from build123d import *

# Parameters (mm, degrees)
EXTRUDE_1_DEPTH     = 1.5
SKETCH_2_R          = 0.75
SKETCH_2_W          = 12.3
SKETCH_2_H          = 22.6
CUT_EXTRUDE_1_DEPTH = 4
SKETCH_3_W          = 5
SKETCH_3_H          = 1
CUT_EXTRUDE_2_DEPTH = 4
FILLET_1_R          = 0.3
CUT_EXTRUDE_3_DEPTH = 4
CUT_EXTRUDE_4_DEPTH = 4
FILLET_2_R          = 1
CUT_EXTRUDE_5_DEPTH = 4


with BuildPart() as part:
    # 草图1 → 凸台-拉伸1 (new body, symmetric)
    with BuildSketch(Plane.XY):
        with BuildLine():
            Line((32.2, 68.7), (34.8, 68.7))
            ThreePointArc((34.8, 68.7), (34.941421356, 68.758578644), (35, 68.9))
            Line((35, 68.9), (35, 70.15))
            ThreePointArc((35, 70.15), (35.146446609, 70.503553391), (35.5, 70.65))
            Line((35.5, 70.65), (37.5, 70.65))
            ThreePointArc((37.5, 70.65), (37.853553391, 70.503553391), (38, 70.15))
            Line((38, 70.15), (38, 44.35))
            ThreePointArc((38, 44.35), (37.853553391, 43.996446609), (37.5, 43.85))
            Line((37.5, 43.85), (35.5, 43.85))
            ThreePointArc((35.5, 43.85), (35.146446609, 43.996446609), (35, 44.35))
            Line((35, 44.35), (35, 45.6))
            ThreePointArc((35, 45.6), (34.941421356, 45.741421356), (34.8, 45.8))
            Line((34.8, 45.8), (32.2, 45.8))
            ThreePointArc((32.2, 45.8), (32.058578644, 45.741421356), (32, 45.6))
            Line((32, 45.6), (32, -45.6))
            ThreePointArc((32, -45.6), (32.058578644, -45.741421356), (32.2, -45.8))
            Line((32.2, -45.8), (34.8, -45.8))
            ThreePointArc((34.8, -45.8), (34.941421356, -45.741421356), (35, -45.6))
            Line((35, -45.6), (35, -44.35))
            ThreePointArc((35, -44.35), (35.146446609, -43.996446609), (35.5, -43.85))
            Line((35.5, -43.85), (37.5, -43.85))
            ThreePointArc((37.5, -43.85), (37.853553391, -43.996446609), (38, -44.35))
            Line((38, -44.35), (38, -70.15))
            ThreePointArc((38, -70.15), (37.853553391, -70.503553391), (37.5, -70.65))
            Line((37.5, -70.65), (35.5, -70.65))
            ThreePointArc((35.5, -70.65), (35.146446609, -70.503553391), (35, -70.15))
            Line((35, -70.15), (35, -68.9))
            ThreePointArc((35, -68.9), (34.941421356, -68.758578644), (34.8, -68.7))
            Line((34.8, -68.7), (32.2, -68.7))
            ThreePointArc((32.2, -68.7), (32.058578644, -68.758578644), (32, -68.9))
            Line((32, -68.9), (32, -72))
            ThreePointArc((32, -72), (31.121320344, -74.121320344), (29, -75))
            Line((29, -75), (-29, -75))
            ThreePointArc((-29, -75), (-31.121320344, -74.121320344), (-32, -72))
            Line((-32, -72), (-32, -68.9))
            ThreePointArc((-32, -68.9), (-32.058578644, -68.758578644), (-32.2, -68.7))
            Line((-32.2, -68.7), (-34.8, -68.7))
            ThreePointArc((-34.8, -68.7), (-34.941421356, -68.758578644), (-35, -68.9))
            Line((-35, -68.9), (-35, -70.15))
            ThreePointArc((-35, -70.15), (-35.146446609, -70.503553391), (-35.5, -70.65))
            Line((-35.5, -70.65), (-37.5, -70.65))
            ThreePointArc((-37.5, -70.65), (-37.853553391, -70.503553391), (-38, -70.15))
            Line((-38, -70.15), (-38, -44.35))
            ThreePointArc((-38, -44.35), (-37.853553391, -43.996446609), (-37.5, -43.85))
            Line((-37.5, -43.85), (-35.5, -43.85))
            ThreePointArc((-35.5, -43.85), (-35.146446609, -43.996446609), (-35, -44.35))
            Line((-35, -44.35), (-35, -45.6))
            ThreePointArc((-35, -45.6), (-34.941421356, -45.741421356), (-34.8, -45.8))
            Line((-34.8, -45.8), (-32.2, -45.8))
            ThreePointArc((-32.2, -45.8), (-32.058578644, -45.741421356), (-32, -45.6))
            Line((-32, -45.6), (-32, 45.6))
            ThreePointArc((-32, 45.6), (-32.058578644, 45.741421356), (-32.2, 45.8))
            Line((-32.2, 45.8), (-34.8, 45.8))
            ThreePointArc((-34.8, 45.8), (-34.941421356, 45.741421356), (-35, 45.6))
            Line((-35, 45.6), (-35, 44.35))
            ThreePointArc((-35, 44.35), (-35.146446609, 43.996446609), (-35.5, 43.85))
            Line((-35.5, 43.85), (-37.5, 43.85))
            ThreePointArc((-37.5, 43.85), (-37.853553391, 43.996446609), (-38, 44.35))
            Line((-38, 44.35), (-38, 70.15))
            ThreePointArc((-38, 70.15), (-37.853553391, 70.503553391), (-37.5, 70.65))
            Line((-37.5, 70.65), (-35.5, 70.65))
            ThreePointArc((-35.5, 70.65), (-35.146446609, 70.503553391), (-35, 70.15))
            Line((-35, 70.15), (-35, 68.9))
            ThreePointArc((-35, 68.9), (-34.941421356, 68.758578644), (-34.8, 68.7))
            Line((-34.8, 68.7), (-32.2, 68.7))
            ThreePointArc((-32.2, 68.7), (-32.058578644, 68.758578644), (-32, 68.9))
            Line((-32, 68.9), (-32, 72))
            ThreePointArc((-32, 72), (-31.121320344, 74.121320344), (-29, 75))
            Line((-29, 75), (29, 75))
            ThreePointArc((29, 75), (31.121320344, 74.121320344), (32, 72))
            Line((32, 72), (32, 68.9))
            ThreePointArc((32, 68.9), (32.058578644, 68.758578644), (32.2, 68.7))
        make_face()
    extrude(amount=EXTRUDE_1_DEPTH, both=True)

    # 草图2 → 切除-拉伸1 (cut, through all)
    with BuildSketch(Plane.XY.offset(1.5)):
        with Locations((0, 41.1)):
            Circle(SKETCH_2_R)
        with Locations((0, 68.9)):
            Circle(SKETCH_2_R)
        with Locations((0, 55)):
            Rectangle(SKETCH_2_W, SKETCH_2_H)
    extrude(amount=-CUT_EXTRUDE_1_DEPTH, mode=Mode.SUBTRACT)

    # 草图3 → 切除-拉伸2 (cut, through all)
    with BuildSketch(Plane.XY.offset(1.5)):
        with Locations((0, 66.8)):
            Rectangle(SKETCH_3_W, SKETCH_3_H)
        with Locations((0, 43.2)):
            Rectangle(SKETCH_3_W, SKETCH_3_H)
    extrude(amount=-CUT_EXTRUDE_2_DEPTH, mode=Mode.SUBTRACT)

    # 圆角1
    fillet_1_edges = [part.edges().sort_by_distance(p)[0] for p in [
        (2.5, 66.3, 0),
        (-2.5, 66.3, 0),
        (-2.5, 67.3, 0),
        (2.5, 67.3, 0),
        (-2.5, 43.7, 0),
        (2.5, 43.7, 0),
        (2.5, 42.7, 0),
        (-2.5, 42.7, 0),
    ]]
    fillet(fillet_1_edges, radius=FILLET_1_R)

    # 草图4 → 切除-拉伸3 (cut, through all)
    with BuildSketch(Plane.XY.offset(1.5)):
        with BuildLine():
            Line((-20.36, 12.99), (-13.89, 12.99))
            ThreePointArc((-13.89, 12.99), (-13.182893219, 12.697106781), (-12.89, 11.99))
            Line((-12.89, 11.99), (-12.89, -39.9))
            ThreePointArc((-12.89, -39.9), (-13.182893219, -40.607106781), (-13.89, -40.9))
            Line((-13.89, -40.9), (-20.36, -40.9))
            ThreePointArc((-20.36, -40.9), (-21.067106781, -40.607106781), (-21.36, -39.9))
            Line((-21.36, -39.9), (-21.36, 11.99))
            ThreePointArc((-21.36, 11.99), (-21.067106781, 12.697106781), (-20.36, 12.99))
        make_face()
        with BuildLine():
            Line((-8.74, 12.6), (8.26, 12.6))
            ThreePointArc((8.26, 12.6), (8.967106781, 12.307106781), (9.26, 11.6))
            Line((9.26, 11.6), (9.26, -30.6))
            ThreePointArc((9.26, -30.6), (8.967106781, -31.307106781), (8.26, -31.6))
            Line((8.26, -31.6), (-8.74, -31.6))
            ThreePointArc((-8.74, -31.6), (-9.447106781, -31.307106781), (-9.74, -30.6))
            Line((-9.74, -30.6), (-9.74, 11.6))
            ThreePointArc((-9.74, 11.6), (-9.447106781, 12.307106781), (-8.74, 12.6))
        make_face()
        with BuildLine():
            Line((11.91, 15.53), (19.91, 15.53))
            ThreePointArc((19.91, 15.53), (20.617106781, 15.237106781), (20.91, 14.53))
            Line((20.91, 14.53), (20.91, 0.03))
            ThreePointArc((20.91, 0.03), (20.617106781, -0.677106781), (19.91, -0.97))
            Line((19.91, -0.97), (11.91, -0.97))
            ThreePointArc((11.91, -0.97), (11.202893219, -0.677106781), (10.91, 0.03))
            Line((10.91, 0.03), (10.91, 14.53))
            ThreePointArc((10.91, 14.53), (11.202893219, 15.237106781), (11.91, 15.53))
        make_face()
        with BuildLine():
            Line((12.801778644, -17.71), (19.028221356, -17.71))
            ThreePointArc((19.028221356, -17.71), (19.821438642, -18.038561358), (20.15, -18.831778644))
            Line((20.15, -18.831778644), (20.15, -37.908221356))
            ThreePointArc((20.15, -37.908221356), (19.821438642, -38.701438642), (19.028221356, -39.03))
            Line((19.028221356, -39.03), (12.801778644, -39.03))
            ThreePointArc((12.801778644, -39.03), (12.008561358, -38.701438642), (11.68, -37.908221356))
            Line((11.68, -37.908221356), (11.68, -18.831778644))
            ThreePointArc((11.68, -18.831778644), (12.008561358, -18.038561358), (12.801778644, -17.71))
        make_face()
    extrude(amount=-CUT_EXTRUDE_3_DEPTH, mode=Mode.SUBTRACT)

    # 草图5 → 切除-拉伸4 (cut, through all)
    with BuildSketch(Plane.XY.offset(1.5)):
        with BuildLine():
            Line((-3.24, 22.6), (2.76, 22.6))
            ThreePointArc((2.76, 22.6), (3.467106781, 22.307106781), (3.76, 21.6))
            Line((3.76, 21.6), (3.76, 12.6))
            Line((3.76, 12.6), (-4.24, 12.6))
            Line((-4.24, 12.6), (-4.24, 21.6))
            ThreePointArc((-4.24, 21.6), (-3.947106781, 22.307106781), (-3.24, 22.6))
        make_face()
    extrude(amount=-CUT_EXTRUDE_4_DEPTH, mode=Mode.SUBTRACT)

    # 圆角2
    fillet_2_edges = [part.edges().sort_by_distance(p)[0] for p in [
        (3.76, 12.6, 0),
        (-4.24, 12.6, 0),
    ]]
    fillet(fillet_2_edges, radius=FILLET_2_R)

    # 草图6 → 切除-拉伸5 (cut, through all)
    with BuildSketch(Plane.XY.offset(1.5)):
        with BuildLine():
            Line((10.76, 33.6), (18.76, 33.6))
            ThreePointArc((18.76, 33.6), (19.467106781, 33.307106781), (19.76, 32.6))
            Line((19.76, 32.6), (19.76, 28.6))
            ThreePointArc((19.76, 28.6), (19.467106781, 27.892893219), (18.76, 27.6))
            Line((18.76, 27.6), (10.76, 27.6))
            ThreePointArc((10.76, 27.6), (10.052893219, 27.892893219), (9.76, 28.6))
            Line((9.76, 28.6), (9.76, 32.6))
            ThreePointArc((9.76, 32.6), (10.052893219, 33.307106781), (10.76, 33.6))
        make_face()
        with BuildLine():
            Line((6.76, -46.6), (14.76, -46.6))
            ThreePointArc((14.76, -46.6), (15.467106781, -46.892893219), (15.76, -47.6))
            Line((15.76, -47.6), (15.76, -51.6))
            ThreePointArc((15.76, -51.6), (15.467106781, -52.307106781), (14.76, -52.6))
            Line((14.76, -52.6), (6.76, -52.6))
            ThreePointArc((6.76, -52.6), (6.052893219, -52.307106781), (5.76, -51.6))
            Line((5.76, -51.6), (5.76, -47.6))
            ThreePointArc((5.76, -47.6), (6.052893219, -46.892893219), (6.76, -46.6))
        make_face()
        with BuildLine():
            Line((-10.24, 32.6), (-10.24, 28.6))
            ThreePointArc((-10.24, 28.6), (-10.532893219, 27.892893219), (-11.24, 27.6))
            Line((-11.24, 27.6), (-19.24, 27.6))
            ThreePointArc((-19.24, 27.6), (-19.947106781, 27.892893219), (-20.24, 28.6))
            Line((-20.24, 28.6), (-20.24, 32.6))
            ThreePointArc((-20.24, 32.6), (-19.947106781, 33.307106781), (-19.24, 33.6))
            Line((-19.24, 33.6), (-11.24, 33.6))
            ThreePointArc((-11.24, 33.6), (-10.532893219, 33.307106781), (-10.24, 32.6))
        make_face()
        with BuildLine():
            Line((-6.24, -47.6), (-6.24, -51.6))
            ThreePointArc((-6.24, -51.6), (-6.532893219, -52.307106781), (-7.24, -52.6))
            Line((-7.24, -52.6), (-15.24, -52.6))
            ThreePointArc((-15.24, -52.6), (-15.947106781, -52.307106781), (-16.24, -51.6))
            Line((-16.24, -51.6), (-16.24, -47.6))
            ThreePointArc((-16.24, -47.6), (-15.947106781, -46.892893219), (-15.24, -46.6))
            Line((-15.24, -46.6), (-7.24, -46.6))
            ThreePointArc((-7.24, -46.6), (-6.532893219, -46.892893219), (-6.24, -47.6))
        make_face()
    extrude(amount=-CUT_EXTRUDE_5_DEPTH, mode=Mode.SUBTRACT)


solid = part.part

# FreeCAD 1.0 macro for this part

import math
import FreeCAD as App
import Part
import Sketcher

V = App.Vector
Q = App.Units.Quantity


def edges_at(feature, points):
    """Names of the edges that pass closest to the given points."""
    edges = feature.Shape.Edges
    near = lambda p: min(range(len(edges)), key=lambda i: edges[i].distToShape(Part.Vertex(*p))[0])
    return sorted({f"Edge{near(p) + 1}" for p in points})

doc = App.newDocument("Part")
body = doc.addObject("PartDesign::Body", "Body")

sketch1 = body.newObject("Sketcher::SketchObject", "Sketch")
sketch1.AttachmentSupport = (doc.getObject("XY_Plane"), [""])
sketch1.MapMode = "FlatFace"
sketch1.addGeometry([
    Part.LineSegment(V(34.8, 68.7, 0), V(32.2, 68.7, 0)),
    Part.ArcOfCircle(Part.Circle(V(32.2, 68.9, 0), V(0, 0, 1), 0.2), math.radians(-180), math.radians(-90)),
    Part.LineSegment(V(32, 68.9, 0), V(32, 72, 0)),
    Part.ArcOfCircle(Part.Circle(V(29, 72, 0), V(0, 0, 1), 3), math.radians(0), math.radians(90)),
    Part.LineSegment(V(29, 75, 0), V(-29, 75, 0)),
    Part.ArcOfCircle(Part.Circle(V(-29, 72, 0), V(0, 0, 1), 3), math.radians(90), math.radians(180)),
    Part.LineSegment(V(-32, 72, 0), V(-32, 68.9, 0)),
    Part.ArcOfCircle(Part.Circle(V(-32.2, 68.9, 0), V(0, 0, 1), 0.2), math.radians(-90), math.radians(0)),
    Part.LineSegment(V(-32.2, 68.7, 0), V(-34.8, 68.7, 0)),
    Part.ArcOfCircle(Part.Circle(V(-34.8, 68.9, 0), V(0, 0, 1), 0.2), math.radians(-180), math.radians(-90)),
    Part.LineSegment(V(-35, 68.9, 0), V(-35, 70.15, 0)),
    Part.ArcOfCircle(Part.Circle(V(-35.5, 70.15, 0), V(0, 0, 1), 0.5), math.radians(0), math.radians(90)),
    Part.LineSegment(V(-35.5, 70.65, 0), V(-37.5, 70.65, 0)),
    Part.ArcOfCircle(Part.Circle(V(-37.5, 70.15, 0), V(0, 0, 1), 0.5), math.radians(90), math.radians(180)),
    Part.LineSegment(V(-38, 70.15, 0), V(-38, 44.35, 0)),
    Part.ArcOfCircle(Part.Circle(V(-37.5, 44.35, 0), V(0, 0, 1), 0.5), math.radians(180), math.radians(270)),
    Part.LineSegment(V(-37.5, 43.85, 0), V(-35.5, 43.85, 0)),
    Part.ArcOfCircle(Part.Circle(V(-35.5, 44.35, 0), V(0, 0, 1), 0.5), math.radians(-90), math.radians(0)),
    Part.LineSegment(V(-35, 44.35, 0), V(-35, 45.6, 0)),
    Part.ArcOfCircle(Part.Circle(V(-34.8, 45.6, 0), V(0, 0, 1), 0.2), math.radians(90), math.radians(180)),
    Part.LineSegment(V(-34.8, 45.8, 0), V(-32.2, 45.8, 0)),
    Part.ArcOfCircle(Part.Circle(V(-32.2, 45.6, 0), V(0, 0, 1), 0.2), math.radians(0), math.radians(90)),
    Part.LineSegment(V(-32, 45.6, 0), V(-32, -45.6, 0)),
    Part.ArcOfCircle(Part.Circle(V(-32.2, -45.6, 0), V(0, 0, 1), 0.2), math.radians(-90), math.radians(0)),
    Part.LineSegment(V(-32.2, -45.8, 0), V(-34.8, -45.8, 0)),
    Part.ArcOfCircle(Part.Circle(V(-34.8, -45.6, 0), V(0, 0, 1), 0.2), math.radians(-180), math.radians(-90)),
    Part.LineSegment(V(-35, -45.6, 0), V(-35, -44.35, 0)),
    Part.ArcOfCircle(Part.Circle(V(-35.5, -44.35, 0), V(0, 0, 1), 0.5), math.radians(0), math.radians(90)),
    Part.LineSegment(V(-35.5, -43.85, 0), V(-37.5, -43.85, 0)),
    Part.ArcOfCircle(Part.Circle(V(-37.5, -44.35, 0), V(0, 0, 1), 0.5), math.radians(90), math.radians(180)),
    Part.LineSegment(V(-38, -44.35, 0), V(-38, -70.15, 0)),
    Part.ArcOfCircle(Part.Circle(V(-37.5, -70.15, 0), V(0, 0, 1), 0.5), math.radians(180), math.radians(270)),
    Part.LineSegment(V(-37.5, -70.65, 0), V(-35.5, -70.65, 0)),
    Part.ArcOfCircle(Part.Circle(V(-35.5, -70.15, 0), V(0, 0, 1), 0.5), math.radians(-90), math.radians(0)),
    Part.LineSegment(V(-35, -70.15, 0), V(-35, -68.9, 0)),
    Part.ArcOfCircle(Part.Circle(V(-34.8, -68.9, 0), V(0, 0, 1), 0.2), math.radians(90), math.radians(180)),
    Part.LineSegment(V(-34.8, -68.7, 0), V(-32.2, -68.7, 0)),
    Part.ArcOfCircle(Part.Circle(V(-32.2, -68.9, 0), V(0, 0, 1), 0.2), math.radians(0), math.radians(90)),
    Part.LineSegment(V(-32, -68.9, 0), V(-32, -72, 0)),
    Part.ArcOfCircle(Part.Circle(V(-29, -72, 0), V(0, 0, 1), 3), math.radians(180), math.radians(270)),
    Part.LineSegment(V(-29, -75, 0), V(29, -75, 0)),
    Part.ArcOfCircle(Part.Circle(V(29, -72, 0), V(0, 0, 1), 3), math.radians(-90), math.radians(0)),
    Part.LineSegment(V(32, -72, 0), V(32, -68.9, 0)),
    Part.ArcOfCircle(Part.Circle(V(32.2, -68.9, 0), V(0, 0, 1), 0.2), math.radians(90), math.radians(180)),
    Part.LineSegment(V(32.2, -68.7, 0), V(34.8, -68.7, 0)),
    Part.ArcOfCircle(Part.Circle(V(34.8, -68.9, 0), V(0, 0, 1), 0.2), math.radians(0), math.radians(90)),
    Part.LineSegment(V(35, -68.9, 0), V(35, -70.15, 0)),
    Part.ArcOfCircle(Part.Circle(V(35.5, -70.15, 0), V(0, 0, 1), 0.5), math.radians(180), math.radians(270)),
    Part.LineSegment(V(35.5, -70.65, 0), V(37.5, -70.65, 0)),
    Part.ArcOfCircle(Part.Circle(V(37.5, -70.15, 0), V(0, 0, 1), 0.5), math.radians(-90), math.radians(0)),
    Part.LineSegment(V(38, -70.15, 0), V(38, -44.35, 0)),
    Part.ArcOfCircle(Part.Circle(V(37.5, -44.35, 0), V(0, 0, 1), 0.5), math.radians(0), math.radians(90)),
    Part.LineSegment(V(37.5, -43.85, 0), V(35.5, -43.85, 0)),
    Part.ArcOfCircle(Part.Circle(V(35.5, -44.35, 0), V(0, 0, 1), 0.5), math.radians(90), math.radians(180)),
    Part.LineSegment(V(35, -44.35, 0), V(35, -45.6, 0)),
    Part.ArcOfCircle(Part.Circle(V(34.8, -45.6, 0), V(0, 0, 1), 0.2), math.radians(-90), math.radians(0)),
    Part.LineSegment(V(34.8, -45.8, 0), V(32.2, -45.8, 0)),
    Part.ArcOfCircle(Part.Circle(V(32.2, -45.6, 0), V(0, 0, 1), 0.2), math.radians(-180), math.radians(-90)),
    Part.LineSegment(V(32, -45.6, 0), V(32, 45.6, 0)),
    Part.ArcOfCircle(Part.Circle(V(32.2, 45.6, 0), V(0, 0, 1), 0.2), math.radians(90), math.radians(180)),
    Part.LineSegment(V(32.2, 45.8, 0), V(34.8, 45.8, 0)),
    Part.ArcOfCircle(Part.Circle(V(34.8, 45.6, 0), V(0, 0, 1), 0.2), math.radians(0), math.radians(90)),
    Part.LineSegment(V(35, 45.6, 0), V(35, 44.35, 0)),
    Part.ArcOfCircle(Part.Circle(V(35.5, 44.35, 0), V(0, 0, 1), 0.5), math.radians(180), math.radians(270)),
    Part.LineSegment(V(35.5, 43.85, 0), V(37.5, 43.85, 0)),
    Part.ArcOfCircle(Part.Circle(V(37.5, 44.35, 0), V(0, 0, 1), 0.5), math.radians(-90), math.radians(0)),
    Part.LineSegment(V(38, 44.35, 0), V(38, 70.15, 0)),
    Part.ArcOfCircle(Part.Circle(V(37.5, 70.15, 0), V(0, 0, 1), 0.5), math.radians(0), math.radians(90)),
    Part.LineSegment(V(37.5, 70.65, 0), V(35.5, 70.65, 0)),
    Part.ArcOfCircle(Part.Circle(V(35.5, 70.15, 0), V(0, 0, 1), 0.5), math.radians(90), math.radians(180)),
    Part.LineSegment(V(35, 70.15, 0), V(35, 68.9, 0)),
    Part.ArcOfCircle(Part.Circle(V(34.8, 68.9, 0), V(0, 0, 1), 0.2), math.radians(-90), math.radians(0)),
], False)
sketch1.addConstraint([
    Sketcher.Constraint("Tangent", 0, 2, 1, 2),
    Sketcher.Constraint("Tangent", 1, 1, 2, 1),
    Sketcher.Constraint("Tangent", 2, 2, 3, 1),
    Sketcher.Constraint("Tangent", 3, 2, 4, 1),
    Sketcher.Constraint("Tangent", 4, 2, 5, 1),
    Sketcher.Constraint("Tangent", 5, 2, 6, 1),
    Sketcher.Constraint("Tangent", 6, 2, 7, 2),
    Sketcher.Constraint("Tangent", 7, 1, 8, 1),
    Sketcher.Constraint("Tangent", 8, 2, 9, 2),
    Sketcher.Constraint("Tangent", 9, 1, 10, 1),
    Sketcher.Constraint("Tangent", 10, 2, 11, 1),
    Sketcher.Constraint("Tangent", 11, 2, 12, 1),
    Sketcher.Constraint("Tangent", 12, 2, 13, 1),
    Sketcher.Constraint("Tangent", 13, 2, 14, 1),
    Sketcher.Constraint("Tangent", 14, 2, 15, 1),
    Sketcher.Constraint("Tangent", 15, 2, 16, 1),
    Sketcher.Constraint("Tangent", 16, 2, 17, 1),
    Sketcher.Constraint("Tangent", 17, 2, 18, 1),
    Sketcher.Constraint("Tangent", 18, 2, 19, 2),
    Sketcher.Constraint("Tangent", 19, 1, 20, 1),
    Sketcher.Constraint("Tangent", 20, 2, 21, 2),
    Sketcher.Constraint("Tangent", 21, 1, 22, 1),
    Sketcher.Constraint("Tangent", 22, 2, 23, 2),
    Sketcher.Constraint("Tangent", 23, 1, 24, 1),
    Sketcher.Constraint("Tangent", 24, 2, 25, 2),
    Sketcher.Constraint("Tangent", 25, 1, 26, 1),
    Sketcher.Constraint("Tangent", 26, 2, 27, 1),
    Sketcher.Constraint("Tangent", 27, 2, 28, 1),
    Sketcher.Constraint("Tangent", 28, 2, 29, 1),
    Sketcher.Constraint("Tangent", 29, 2, 30, 1),
    Sketcher.Constraint("Tangent", 30, 2, 31, 1),
    Sketcher.Constraint("Tangent", 31, 2, 32, 1),
    Sketcher.Constraint("Tangent", 32, 2, 33, 1),
    Sketcher.Constraint("Tangent", 33, 2, 34, 1),
    Sketcher.Constraint("Tangent", 34, 2, 35, 2),
    Sketcher.Constraint("Tangent", 35, 1, 36, 1),
    Sketcher.Constraint("Tangent", 36, 2, 37, 2),
    Sketcher.Constraint("Tangent", 37, 1, 38, 1),
    Sketcher.Constraint("Tangent", 38, 2, 39, 1),
    Sketcher.Constraint("Tangent", 39, 2, 40, 1),
    Sketcher.Constraint("Tangent", 40, 2, 41, 1),
    Sketcher.Constraint("Tangent", 41, 2, 42, 1),
    Sketcher.Constraint("Tangent", 42, 2, 43, 2),
    Sketcher.Constraint("Tangent", 43, 1, 44, 1),
    Sketcher.Constraint("Tangent", 44, 2, 45, 2),
    Sketcher.Constraint("Tangent", 45, 1, 46, 1),
    Sketcher.Constraint("Tangent", 46, 2, 47, 1),
    Sketcher.Constraint("Tangent", 47, 2, 48, 1),
    Sketcher.Constraint("Tangent", 48, 2, 49, 1),
    Sketcher.Constraint("Tangent", 49, 2, 50, 1),
    Sketcher.Constraint("Tangent", 50, 2, 51, 1),
    Sketcher.Constraint("Tangent", 51, 2, 52, 1),
    Sketcher.Constraint("Tangent", 52, 2, 53, 1),
    Sketcher.Constraint("Tangent", 53, 2, 54, 1),
    Sketcher.Constraint("Tangent", 54, 2, 55, 2),
    Sketcher.Constraint("Tangent", 55, 1, 56, 1),
    Sketcher.Constraint("Tangent", 56, 2, 57, 2),
    Sketcher.Constraint("Tangent", 57, 1, 58, 1),
    Sketcher.Constraint("Tangent", 58, 2, 59, 2),
    Sketcher.Constraint("Tangent", 59, 1, 60, 1),
    Sketcher.Constraint("Tangent", 60, 2, 61, 2),
    Sketcher.Constraint("Tangent", 61, 1, 62, 1),
    Sketcher.Constraint("Tangent", 62, 2, 63, 1),
    Sketcher.Constraint("Tangent", 63, 2, 64, 1),
    Sketcher.Constraint("Tangent", 64, 2, 65, 1),
    Sketcher.Constraint("Tangent", 65, 2, 66, 1),
    Sketcher.Constraint("Tangent", 66, 2, 67, 1),
    Sketcher.Constraint("Tangent", 67, 2, 68, 1),
    Sketcher.Constraint("Tangent", 68, 2, 69, 1),
    Sketcher.Constraint("Tangent", 69, 2, 70, 1),
    Sketcher.Constraint("Tangent", 70, 2, 71, 2),
    Sketcher.Constraint("Tangent", 71, 1, 0, 1),
    Sketcher.Constraint("Horizontal", 0),
    Sketcher.Constraint("Vertical", 2),
    Sketcher.Constraint("Horizontal", 4),
    Sketcher.Constraint("Vertical", 6),
    Sketcher.Constraint("Horizontal", 8),
    Sketcher.Constraint("Vertical", 10),
    Sketcher.Constraint("Horizontal", 12),
    Sketcher.Constraint("Vertical", 14),
    Sketcher.Constraint("Horizontal", 16),
    Sketcher.Constraint("Vertical", 18),
    Sketcher.Constraint("Horizontal", 20),
    Sketcher.Constraint("Vertical", 22),
    Sketcher.Constraint("Horizontal", 24),
    Sketcher.Constraint("Vertical", 26),
    Sketcher.Constraint("Horizontal", 28),
    Sketcher.Constraint("Vertical", 30),
    Sketcher.Constraint("Horizontal", 32),
    Sketcher.Constraint("Vertical", 34),
    Sketcher.Constraint("Horizontal", 36),
    Sketcher.Constraint("Vertical", 38),
    Sketcher.Constraint("Horizontal", 40),
    Sketcher.Constraint("Vertical", 42),
    Sketcher.Constraint("Horizontal", 44),
    Sketcher.Constraint("Vertical", 46),
    Sketcher.Constraint("Horizontal", 48),
    Sketcher.Constraint("Vertical", 50),
    Sketcher.Constraint("Horizontal", 52),
    Sketcher.Constraint("Vertical", 54),
    Sketcher.Constraint("Horizontal", 56),
    Sketcher.Constraint("Vertical", 58),
    Sketcher.Constraint("Horizontal", 60),
    Sketcher.Constraint("Vertical", 62),
    Sketcher.Constraint("Horizontal", 64),
    Sketcher.Constraint("Vertical", 66),
    Sketcher.Constraint("Horizontal", 68),
    Sketcher.Constraint("Vertical", 70),
    Sketcher.Constraint("Equal", 3, 5),
    Sketcher.Constraint("Equal", 1, 7),
    Sketcher.Constraint("Equal", 7, 9),
    Sketcher.Constraint("Equal", 11, 13),
    Sketcher.Constraint("Equal", 13, 15),
    Sketcher.Constraint("Equal", 15, 17),
    Sketcher.Constraint("Equal", 9, 19),
    Sketcher.Constraint("Equal", 19, 21),
    Sketcher.Constraint("Equal", 21, 23),
    Sketcher.Constraint("Equal", 23, 25),
    Sketcher.Constraint("Equal", 17, 27),
    Sketcher.Constraint("Equal", 27, 29),
    Sketcher.Constraint("Equal", 29, 31),
    Sketcher.Constraint("Equal", 31, 33),
    Sketcher.Constraint("Equal", 25, 35),
    Sketcher.Constraint("Equal", 35, 37),
    Sketcher.Constraint("Equal", 5, 39),
    Sketcher.Constraint("Equal", 39, 41),
    Sketcher.Constraint("Equal", 37, 43),
    Sketcher.Constraint("Equal", 43, 45),
    Sketcher.Constraint("Equal", 33, 47),
    Sketcher.Constraint("Equal", 47, 49),
    Sketcher.Constraint("Equal", 49, 51),
    Sketcher.Constraint("Equal", 51, 53),
    Sketcher.Constraint("Equal", 45, 55),
    Sketcher.Constraint("Equal", 55, 57),
    Sketcher.Constraint("Equal", 57, 59),
    Sketcher.Constraint("Equal", 59, 61),
    Sketcher.Constraint("Equal", 53, 63),
    Sketcher.Constraint("Equal", 63, 65),
    Sketcher.Constraint("Equal", 65, 67),
    Sketcher.Constraint("Equal", 67, 69),
    Sketcher.Constraint("Equal", 61, 71),
    Sketcher.Constraint("Symmetric", 1, 3, 37, 3, -1, 1),
    Sketcher.Constraint("Symmetric", 5, 3, 41, 3, -1, 1),
    Sketcher.Constraint("Symmetric", 9, 3, 45, 3, -1, 1),
    Sketcher.Constraint("Symmetric", 13, 3, 49, 3, -1, 1),
    Sketcher.Constraint("Symmetric", 17, 3, 53, 3, -1, 1),
    Sketcher.Constraint("Symmetric", 21, 3, 57, 3, -1, 1),
    Sketcher.Constraint("Symmetric", 25, 3, 61, 3, -1, 1),
    Sketcher.Constraint("Symmetric", 29, 3, 65, 3, -1, 1),
    Sketcher.Constraint("Symmetric", 33, 3, 69, 3, -1, 1),
    Sketcher.Constraint("Symmetric", 1, 3, 7, 3, -2),
    Sketcher.Constraint("Symmetric", 33, 3, 47, 3, -2),
    Sketcher.Constraint("Symmetric", 29, 3, 51, 3, -2),
    Sketcher.Constraint("Symmetric", 25, 3, 55, 3, -2),
    Sketcher.Constraint("Vertical", 11, 3, 17, 3),
    Sketcher.Constraint("Vertical", 7, 3, 21, 3),
    Sketcher.Constraint("Equal", 10, 18),
    Sketcher.Constraint("Radius", 3, Q("3 mm")),
    Sketcher.Constraint("Radius", 1, Q("0.2 mm")),
    Sketcher.Constraint("Radius", 11, Q("0.5 mm")),
    Sketcher.Constraint("DistanceX", 4, 2, 4, 1, Q("58 mm")),
    Sketcher.Constraint("DistanceX", 12, 2, 12, 1, Q("2 mm")),
    Sketcher.Constraint("DistanceX", 0, 2, 0, 1, Q("2.6 mm")),
    Sketcher.Constraint("DistanceY", 2, 1, 2, 2, Q("3.1 mm")),
    Sketcher.Constraint("DistanceY", 14, 2, 14, 1, Q("25.8 mm")),
    Sketcher.Constraint("DistanceY", 22, 2, 22, 1, Q("91.2 mm")),
    Sketcher.Constraint("DistanceY", -1, 1, 3, 3, Q("72 mm")),
])
pad1 = body.newObject("PartDesign::Pad", "Pad")
pad1.Profile = sketch1
pad1.Length = 3
pad1.Midplane = True

sketch2 = body.newObject("Sketcher::SketchObject", "Sketch001")
sketch2.AttachmentSupport = (doc.getObject("XY_Plane"), [""])
sketch2.MapMode = "FlatFace"
sketch2.AttachmentOffset = App.Placement(V(0, 0, 1.5), App.Rotation())
sketch2.addGeometry([
    Part.Circle(V(0, 41.1, 0), V(0, 0, 1), 0.8),
    Part.Circle(V(0, 68.9, 0), V(0, 0, 1), 0.8),
    Part.LineSegment(V(-6.2, 66.3, 0), V(-6.2, 43.7, 0)),
    Part.LineSegment(V(-6.2, 43.7, 0), V(6.2, 43.7, 0)),
    Part.LineSegment(V(6.2, 43.7, 0), V(6.2, 66.3, 0)),
    Part.LineSegment(V(6.2, 66.3, 0), V(-6.2, 66.3, 0)),
], False)
sketch2.addConstraint([
    Sketcher.Constraint("Coincident", 2, 2, 3, 1),
    Sketcher.Constraint("Coincident", 3, 2, 4, 1),
    Sketcher.Constraint("Coincident", 4, 2, 5, 1),
    Sketcher.Constraint("Coincident", 5, 2, 2, 1),
    Sketcher.Constraint("Vertical", 2),
    Sketcher.Constraint("Horizontal", 3),
    Sketcher.Constraint("Vertical", 4),
    Sketcher.Constraint("Horizontal", 5),
    Sketcher.Constraint("Equal", 0, 1),
    Sketcher.Constraint("PointOnObject", 0, 3, -2),
    Sketcher.Constraint("PointOnObject", 1, 3, -2),
    Sketcher.Constraint("Diameter", 0, Q("1.5 mm")),
    Sketcher.Constraint("DistanceX", 3, 1, 3, 2, Q("12.3 mm")),
    Sketcher.Constraint("DistanceY", 2, 2, 2, 1, Q("22.6 mm")),
    Sketcher.Constraint("DistanceY", -1, 1, 0, 3, Q("41.1 mm")),
    Sketcher.Constraint("DistanceY", -1, 1, 1, 3, Q("68.9 mm")),
    Sketcher.Constraint("DistanceY", -1, 1, 2, 2, Q("43.7 mm")),
    Sketcher.Constraint("DistanceX", 2, 2, -1, 1, Q("6.15 mm")),
])
pocket1 = body.newObject("PartDesign::Pocket", "Pocket")
pocket1.Profile = sketch2
pocket1.Type = "ThroughAll"

sketch3 = body.newObject("Sketcher::SketchObject", "Sketch002")
sketch3.AttachmentSupport = (doc.getObject("XY_Plane"), [""])
sketch3.MapMode = "FlatFace"
sketch3.AttachmentOffset = App.Placement(V(0, 0, 1.5), App.Rotation())
sketch3.addGeometry([
    Part.LineSegment(V(-2.5, 67.3, 0), V(-2.5, 66.3, 0)),
    Part.LineSegment(V(-2.5, 66.3, 0), V(2.5, 66.3, 0)),
    Part.LineSegment(V(2.5, 66.3, 0), V(2.5, 67.3, 0)),
    Part.LineSegment(V(2.5, 67.3, 0), V(-2.5, 67.3, 0)),
    Part.LineSegment(V(-2.5, 43.7, 0), V(-2.5, 42.7, 0)),
    Part.LineSegment(V(-2.5, 42.7, 0), V(2.5, 42.7, 0)),
    Part.LineSegment(V(2.5, 42.7, 0), V(2.5, 43.7, 0)),
    Part.LineSegment(V(2.5, 43.7, 0), V(-2.5, 43.7, 0)),
], False)
sketch3.addConstraint([
    Sketcher.Constraint("Coincident", 0, 2, 1, 1),
    Sketcher.Constraint("Coincident", 1, 2, 2, 1),
    Sketcher.Constraint("Coincident", 2, 2, 3, 1),
    Sketcher.Constraint("Coincident", 3, 2, 0, 1),
    Sketcher.Constraint("Coincident", 4, 2, 5, 1),
    Sketcher.Constraint("Coincident", 5, 2, 6, 1),
    Sketcher.Constraint("Coincident", 6, 2, 7, 1),
    Sketcher.Constraint("Coincident", 7, 2, 4, 1),
    Sketcher.Constraint("Vertical", 0),
    Sketcher.Constraint("Horizontal", 1),
    Sketcher.Constraint("Vertical", 2),
    Sketcher.Constraint("Horizontal", 3),
    Sketcher.Constraint("Vertical", 4),
    Sketcher.Constraint("Horizontal", 5),
    Sketcher.Constraint("Vertical", 6),
    Sketcher.Constraint("Horizontal", 7),
    Sketcher.Constraint("Vertical", 3, 2, 4, 2),
    Sketcher.Constraint("Vertical", 2, 2, 5, 2),
    Sketcher.Constraint("Equal", 2, 4),
    Sketcher.Constraint("DistanceX", 1, 1, 1, 2, Q("5 mm")),
    Sketcher.Constraint("DistanceY", 0, 2, 0, 1, Q("1 mm")),
    Sketcher.Constraint("DistanceX", 0, 2, -1, 1, Q("2.5 mm")),
    Sketcher.Constraint("DistanceY", -1, 1, 0, 2, Q("66.3 mm")),
    Sketcher.Constraint("DistanceY", -1, 1, 4, 2, Q("42.7 mm")),
])
pocket2 = body.newObject("PartDesign::Pocket", "Pocket001")
pocket2.Profile = sketch3
pocket2.Type = "ThroughAll"
doc.recompute()

fillet = body.newObject("PartDesign::Fillet", "Fillet")
fillet.Base = (pocket2, edges_at(pocket2, [
    (2.5, 66.3, 0),
    (-2.5, 66.3, 0),
    (-2.5, 67.3, 0),
    (2.5, 67.3, 0),
    (-2.5, 43.7, 0),
    (2.5, 43.7, 0),
    (2.5, 42.7, 0),
    (-2.5, 42.7, 0),
]))
fillet.Radius = 0.3

sketch4 = body.newObject("Sketcher::SketchObject", "Sketch003")
sketch4.AttachmentSupport = (doc.getObject("XY_Plane"), [""])
sketch4.MapMode = "FlatFace"
sketch4.AttachmentOffset = App.Placement(V(0, 0, 1.5), App.Rotation())
sketch4.addGeometry([
    Part.LineSegment(V(-13.9, 13, 0), V(-20.4, 13, 0)),
    Part.ArcOfCircle(Part.Circle(V(-20.4, 12, 0), V(0, 0, 1), 1), math.radians(90), math.radians(180)),
    Part.LineSegment(V(-21.4, 12, 0), V(-21.4, -39.9, 0)),
    Part.ArcOfCircle(Part.Circle(V(-20.4, -39.9, 0), V(0, 0, 1), 1), math.radians(-180), math.radians(-90)),
    Part.LineSegment(V(-20.4, -40.9, 0), V(-13.9, -40.9, 0)),
    Part.ArcOfCircle(Part.Circle(V(-13.9, -39.9, 0), V(0, 0, 1), 1), math.radians(-90), math.radians(0)),
    Part.LineSegment(V(-12.9, -39.9, 0), V(-12.9, 12, 0)),
    Part.ArcOfCircle(Part.Circle(V(-13.9, 12, 0), V(0, 0, 1), 1), math.radians(0), math.radians(90)),
    Part.LineSegment(V(8.3, 12.6, 0), V(-8.7, 12.6, 0)),
    Part.ArcOfCircle(Part.Circle(V(-8.7, 11.6, 0), V(0, 0, 1), 1), math.radians(90), math.radians(180)),
    Part.LineSegment(V(-9.7, 11.6, 0), V(-9.7, -30.6, 0)),
    Part.ArcOfCircle(Part.Circle(V(-8.7, -30.6, 0), V(0, 0, 1), 1), math.radians(-180), math.radians(-90)),
    Part.LineSegment(V(-8.7, -31.6, 0), V(8.3, -31.6, 0)),
    Part.ArcOfCircle(Part.Circle(V(8.3, -30.6, 0), V(0, 0, 1), 1), math.radians(-90), math.radians(0)),
    Part.LineSegment(V(9.3, -30.6, 0), V(9.3, 11.6, 0)),
    Part.ArcOfCircle(Part.Circle(V(8.3, 11.6, 0), V(0, 0, 1), 1), math.radians(0), math.radians(90)),
    Part.LineSegment(V(19.9, 15.5, 0), V(11.9, 15.5, 0)),
    Part.ArcOfCircle(Part.Circle(V(11.9, 14.5, 0), V(0, 0, 1), 1), math.radians(90), math.radians(180)),
    Part.LineSegment(V(10.9, 14.5, 0), V(10.9, 0, 0)),
    Part.ArcOfCircle(Part.Circle(V(11.9, 0, 0), V(0, 0, 1), 1), math.radians(-180), math.radians(-90)),
    Part.LineSegment(V(11.9, -1, 0), V(19.9, -1, 0)),
    Part.ArcOfCircle(Part.Circle(V(19.9, 0, 0), V(0, 0, 1), 1), math.radians(-90), math.radians(0)),
    Part.LineSegment(V(20.9, 0, 0), V(20.9, 14.5, 0)),
    Part.ArcOfCircle(Part.Circle(V(19.9, 14.5, 0), V(0, 0, 1), 1), math.radians(0), math.radians(90)),
    Part.LineSegment(V(19, -17.7, 0), V(12.8, -17.7, 0)),
    Part.ArcOfCircle(Part.Circle(V(12.8, -18.8, 0), V(0, 0, 1), 1.1), math.radians(90), math.radians(180)),
    Part.LineSegment(V(11.7, -18.8, 0), V(11.7, -37.9, 0)),
    Part.ArcOfCircle(Part.Circle(V(12.8, -37.9, 0), V(0, 0, 1), 1.1), math.radians(-180), math.radians(-90)),
    Part.LineSegment(V(12.8, -39, 0), V(19, -39, 0)),
    Part.ArcOfCircle(Part.Circle(V(19, -37.9, 0), V(0, 0, 1), 1.1), math.radians(-90), math.radians(0)),
    Part.LineSegment(V(20.1, -37.9, 0), V(20.1, -18.8, 0)),
    Part.ArcOfCircle(Part.Circle(V(19, -18.8, 0), V(0, 0, 1), 1.1), math.radians(0), math.radians(90)),
], False)
sketch4.addConstraint([
    Sketcher.Constraint("Tangent", 0, 2, 1, 1),
    Sketcher.Constraint("Tangent", 1, 2, 2, 1),
    Sketcher.Constraint("Tangent", 2, 2, 3, 1),
    Sketcher.Constraint("Tangent", 3, 2, 4, 1),
    Sketcher.Constraint("Tangent", 4, 2, 5, 1),
    Sketcher.Constraint("Tangent", 5, 2, 6, 1),
    Sketcher.Constraint("Tangent", 6, 2, 7, 1),
    Sketcher.Constraint("Tangent", 7, 2, 0, 1),
    Sketcher.Constraint("Tangent", 8, 2, 9, 1),
    Sketcher.Constraint("Tangent", 9, 2, 10, 1),
    Sketcher.Constraint("Tangent", 10, 2, 11, 1),
    Sketcher.Constraint("Tangent", 11, 2, 12, 1),
    Sketcher.Constraint("Tangent", 12, 2, 13, 1),
    Sketcher.Constraint("Tangent", 13, 2, 14, 1),
    Sketcher.Constraint("Tangent", 14, 2, 15, 1),
    Sketcher.Constraint("Tangent", 15, 2, 8, 1),
    Sketcher.Constraint("Tangent", 16, 2, 17, 1),
    Sketcher.Constraint("Tangent", 17, 2, 18, 1),
    Sketcher.Constraint("Tangent", 18, 2, 19, 1),
    Sketcher.Constraint("Tangent", 19, 2, 20, 1),
    Sketcher.Constraint("Tangent", 20, 2, 21, 1),
    Sketcher.Constraint("Tangent", 21, 2, 22, 1),
    Sketcher.Constraint("Tangent", 22, 2, 23, 1),
    Sketcher.Constraint("Tangent", 23, 2, 16, 1),
    Sketcher.Constraint("Tangent", 24, 2, 25, 1),
    Sketcher.Constraint("Tangent", 25, 2, 26, 1),
    Sketcher.Constraint("Tangent", 26, 2, 27, 1),
    Sketcher.Constraint("Tangent", 27, 2, 28, 1),
    Sketcher.Constraint("Tangent", 28, 2, 29, 1),
    Sketcher.Constraint("Tangent", 29, 2, 30, 1),
    Sketcher.Constraint("Tangent", 30, 2, 31, 1),
    Sketcher.Constraint("Tangent", 31, 2, 24, 1),
    Sketcher.Constraint("Horizontal", 0),
    Sketcher.Constraint("Vertical", 2),
    Sketcher.Constraint("Horizontal", 4),
    Sketcher.Constraint("Vertical", 6),
    Sketcher.Constraint("Horizontal", 8),
    Sketcher.Constraint("Vertical", 10),
    Sketcher.Constraint("Horizontal", 12),
    Sketcher.Constraint("Vertical", 14),
    Sketcher.Constraint("Horizontal", 16),
    Sketcher.Constraint("Vertical", 18),
    Sketcher.Constraint("Horizontal", 20),
    Sketcher.Constraint("Vertical", 22),
    Sketcher.Constraint("Horizontal", 24),
    Sketcher.Constraint("Vertical", 26),
    Sketcher.Constraint("Horizontal", 28),
    Sketcher.Constraint("Vertical", 30),
    Sketcher.Constraint("Equal", 1, 3),
    Sketcher.Constraint("Equal", 3, 5),
    Sketcher.Constraint("Equal", 5, 7),
    Sketcher.Constraint("Equal", 7, 9),
    Sketcher.Constraint("Equal", 9, 11),
    Sketcher.Constraint("Equal", 11, 13),
    Sketcher.Constraint("Equal", 13, 15),
    Sketcher.Constraint("Equal", 15, 17),
    Sketcher.Constraint("Equal", 17, 19),
    Sketcher.Constraint("Equal", 19, 21),
    Sketcher.Constraint("Equal", 21, 23),
    Sketcher.Constraint("Equal", 25, 27),
    Sketcher.Constraint("Equal", 27, 29),
    Sketcher.Constraint("Equal", 29, 31),
    Sketcher.Constraint("Radius", 1, Q("1 mm")),
    Sketcher.Constraint("DistanceX", 8, 2, 8, 1, Q("17 mm")),
    Sketcher.Constraint("DistanceX", 16, 2, 16, 1, Q("8 mm")),
    Sketcher.Constraint("DistanceY", 10, 2, 10, 1, Q("42.2 mm")),
    Sketcher.Constraint("DistanceY", 18, 2, 18, 1, Q("14.5 mm")),
    Sketcher.Constraint("DistanceX", 0, 2, 0, 1, Q("6.47 mm")),
    Sketcher.Constraint("DistanceY", 2, 2, 2, 1, Q("51.89 mm")),
    Sketcher.Constraint("DistanceY", 3, 3, -1, 1, Q("39.9 mm")),
    Sketcher.Constraint("DistanceY", -1, 1, 9, 3, Q("11.6 mm")),
    Sketcher.Constraint("DistanceX", 7, 3, 17, 3, Q("25.8 mm")),
    Sketcher.Constraint("DistanceX", 1, 3, -1, 1, Q("20.36 mm")),
    Sketcher.Constraint("DistanceX", 9, 3, -1, 1, Q("8.74 mm")),
    Sketcher.Constraint("DistanceY", -1, 1, 17, 3, Q("14.53 mm")),
    Sketcher.Constraint("DistanceY", 24, 2, -1, 1, Q("17.71 mm")),
    Sketcher.Constraint("DistanceX", -1, 1, 25, 2, Q("11.68 mm")),
    Sketcher.Constraint("DistanceY", 27, 2, -1, 1, Q("39.03 mm")),
    Sketcher.Constraint("DistanceX", -1, 1, 29, 2, Q("20.15 mm")),
    Sketcher.Constraint("Radius", 25, Q("1.121779 mm")),
])
pocket3 = body.newObject("PartDesign::Pocket", "Pocket002")
pocket3.Profile = sketch4
pocket3.Type = "ThroughAll"

sketch5 = body.newObject("Sketcher::SketchObject", "Sketch004")
sketch5.AttachmentSupport = (doc.getObject("XY_Plane"), [""])
sketch5.MapMode = "FlatFace"
sketch5.AttachmentOffset = App.Placement(V(0, 0, 1.5), App.Rotation())
sketch5.addGeometry([
    Part.LineSegment(V(2.8, 22.6, 0), V(-3.2, 22.6, 0)),
    Part.ArcOfCircle(Part.Circle(V(-3.2, 21.6, 0), V(0, 0, 1), 1), math.radians(90), math.radians(180)),
    Part.LineSegment(V(-4.2, 21.6, 0), V(-4.2, 12.6, 0)),
    Part.LineSegment(V(-4.2, 12.6, 0), V(3.8, 12.6, 0)),
    Part.LineSegment(V(3.8, 12.6, 0), V(3.8, 21.6, 0)),
    Part.ArcOfCircle(Part.Circle(V(2.8, 21.6, 0), V(0, 0, 1), 1), math.radians(0), math.radians(90)),
], False)
sketch5.addConstraint([
    Sketcher.Constraint("Tangent", 0, 2, 1, 1),
    Sketcher.Constraint("Tangent", 1, 2, 2, 1),
    Sketcher.Constraint("Coincident", 2, 2, 3, 1),
    Sketcher.Constraint("Coincident", 3, 2, 4, 1),
    Sketcher.Constraint("Tangent", 4, 2, 5, 1),
    Sketcher.Constraint("Tangent", 5, 2, 0, 1),
    Sketcher.Constraint("Horizontal", 0),
    Sketcher.Constraint("Vertical", 2),
    Sketcher.Constraint("Horizontal", 3),
    Sketcher.Constraint("Vertical", 4),
    Sketcher.Constraint("Equal", 1, 5),
    Sketcher.Constraint("Radius", 1, Q("1 mm")),
    Sketcher.Constraint("DistanceX", 0, 2, 0, 1, Q("6 mm")),
    Sketcher.Constraint("DistanceY", 2, 2, 2, 1, Q("9 mm")),
    Sketcher.Constraint("DistanceY", -1, 1, 1, 3, Q("21.6 mm")),
    Sketcher.Constraint("DistanceX", 1, 3, -1, 1, Q("3.24 mm")),
])
pocket4 = body.newObject("PartDesign::Pocket", "Pocket003")
pocket4.Profile = sketch5
pocket4.Type = "ThroughAll"
doc.recompute()

fillet2 = body.newObject("PartDesign::Fillet", "Fillet001")
fillet2.Base = (pocket4, edges_at(pocket4, [(3.76, 12.6, 0), (-4.24, 12.6, 0)]))
fillet2.Radius = 1

sketch6 = body.newObject("Sketcher::SketchObject", "Sketch005")
sketch6.AttachmentSupport = (doc.getObject("XY_Plane"), [""])
sketch6.MapMode = "FlatFace"
sketch6.AttachmentOffset = App.Placement(V(0, 0, 1.5), App.Rotation())
sketch6.addGeometry([
    Part.LineSegment(V(18.8, 33.6, 0), V(10.8, 33.6, 0)),
    Part.ArcOfCircle(Part.Circle(V(10.8, 32.6, 0), V(0, 0, 1), 1), math.radians(90), math.radians(180)),
    Part.LineSegment(V(9.8, 32.6, 0), V(9.8, 28.6, 0)),
    Part.ArcOfCircle(Part.Circle(V(10.8, 28.6, 0), V(0, 0, 1), 1), math.radians(-180), math.radians(-90)),
    Part.LineSegment(V(10.8, 27.6, 0), V(18.8, 27.6, 0)),
    Part.ArcOfCircle(Part.Circle(V(18.8, 28.6, 0), V(0, 0, 1), 1), math.radians(-90), math.radians(0)),
    Part.LineSegment(V(19.8, 28.6, 0), V(19.8, 32.6, 0)),
    Part.ArcOfCircle(Part.Circle(V(18.8, 32.6, 0), V(0, 0, 1), 1), math.radians(0), math.radians(90)),
    Part.LineSegment(V(14.8, -46.6, 0), V(6.8, -46.6, 0)),
    Part.ArcOfCircle(Part.Circle(V(6.8, -47.6, 0), V(0, 0, 1), 1), math.radians(90), math.radians(180)),
    Part.LineSegment(V(5.8, -47.6, 0), V(5.8, -51.6, 0)),
    Part.ArcOfCircle(Part.Circle(V(6.8, -51.6, 0), V(0, 0, 1), 1), math.radians(-180), math.radians(-90)),
    Part.LineSegment(V(6.8, -52.6, 0), V(14.8, -52.6, 0)),
    Part.ArcOfCircle(Part.Circle(V(14.8, -51.6, 0), V(0, 0, 1), 1), math.radians(-90), math.radians(0)),
    Part.LineSegment(V(15.8, -51.6, 0), V(15.8, -47.6, 0)),
    Part.ArcOfCircle(Part.Circle(V(14.8, -47.6, 0), V(0, 0, 1), 1), math.radians(0), math.radians(90)),
    Part.LineSegment(V(-10.2, 28.6, 0), V(-10.2, 32.6, 0)),
    Part.ArcOfCircle(Part.Circle(V(-11.2, 32.6, 0), V(0, 0, 1), 1), math.radians(0), math.radians(90)),
    Part.LineSegment(V(-11.2, 33.6, 0), V(-19.2, 33.6, 0)),
    Part.ArcOfCircle(Part.Circle(V(-19.2, 32.6, 0), V(0, 0, 1), 1), math.radians(90), math.radians(180)),
    Part.LineSegment(V(-20.2, 32.6, 0), V(-20.2, 28.6, 0)),
    Part.ArcOfCircle(Part.Circle(V(-19.2, 28.6, 0), V(0, 0, 1), 1), math.radians(-180), math.radians(-90)),
    Part.LineSegment(V(-19.2, 27.6, 0), V(-11.2, 27.6, 0)),
    Part.ArcOfCircle(Part.Circle(V(-11.2, 28.6, 0), V(0, 0, 1), 1), math.radians(-90), math.radians(0)),
    Part.LineSegment(V(-6.2, -51.6, 0), V(-6.2, -47.6, 0)),
    Part.ArcOfCircle(Part.Circle(V(-7.2, -47.6, 0), V(0, 0, 1), 1), math.radians(0), math.radians(90)),
    Part.LineSegment(V(-7.2, -46.6, 0), V(-15.2, -46.6, 0)),
    Part.ArcOfCircle(Part.Circle(V(-15.2, -47.6, 0), V(0, 0, 1), 1), math.radians(90), math.radians(180)),
    Part.LineSegment(V(-16.2, -47.6, 0), V(-16.2, -51.6, 0)),
    Part.ArcOfCircle(Part.Circle(V(-15.2, -51.6, 0), V(0, 0, 1), 1), math.radians(-180), math.radians(-90)),
    Part.LineSegment(V(-15.2, -52.6, 0), V(-7.2, -52.6, 0)),
    Part.ArcOfCircle(Part.Circle(V(-7.2, -51.6, 0), V(0, 0, 1), 1), math.radians(-90), math.radians(0)),
], False)
sketch6.addConstraint([
    Sketcher.Constraint("Tangent", 0, 2, 1, 1),
    Sketcher.Constraint("Tangent", 1, 2, 2, 1),
    Sketcher.Constraint("Tangent", 2, 2, 3, 1),
    Sketcher.Constraint("Tangent", 3, 2, 4, 1),
    Sketcher.Constraint("Tangent", 4, 2, 5, 1),
    Sketcher.Constraint("Tangent", 5, 2, 6, 1),
    Sketcher.Constraint("Tangent", 6, 2, 7, 1),
    Sketcher.Constraint("Tangent", 7, 2, 0, 1),
    Sketcher.Constraint("Tangent", 8, 2, 9, 1),
    Sketcher.Constraint("Tangent", 9, 2, 10, 1),
    Sketcher.Constraint("Tangent", 10, 2, 11, 1),
    Sketcher.Constraint("Tangent", 11, 2, 12, 1),
    Sketcher.Constraint("Tangent", 12, 2, 13, 1),
    Sketcher.Constraint("Tangent", 13, 2, 14, 1),
    Sketcher.Constraint("Tangent", 14, 2, 15, 1),
    Sketcher.Constraint("Tangent", 15, 2, 8, 1),
    Sketcher.Constraint("Tangent", 16, 2, 17, 1),
    Sketcher.Constraint("Tangent", 17, 2, 18, 1),
    Sketcher.Constraint("Tangent", 18, 2, 19, 1),
    Sketcher.Constraint("Tangent", 19, 2, 20, 1),
    Sketcher.Constraint("Tangent", 20, 2, 21, 1),
    Sketcher.Constraint("Tangent", 21, 2, 22, 1),
    Sketcher.Constraint("Tangent", 22, 2, 23, 1),
    Sketcher.Constraint("Tangent", 23, 2, 16, 1),
    Sketcher.Constraint("Tangent", 24, 2, 25, 1),
    Sketcher.Constraint("Tangent", 25, 2, 26, 1),
    Sketcher.Constraint("Tangent", 26, 2, 27, 1),
    Sketcher.Constraint("Tangent", 27, 2, 28, 1),
    Sketcher.Constraint("Tangent", 28, 2, 29, 1),
    Sketcher.Constraint("Tangent", 29, 2, 30, 1),
    Sketcher.Constraint("Tangent", 30, 2, 31, 1),
    Sketcher.Constraint("Tangent", 31, 2, 24, 1),
    Sketcher.Constraint("Horizontal", 0),
    Sketcher.Constraint("Vertical", 2),
    Sketcher.Constraint("Horizontal", 4),
    Sketcher.Constraint("Vertical", 6),
    Sketcher.Constraint("Horizontal", 8),
    Sketcher.Constraint("Vertical", 10),
    Sketcher.Constraint("Horizontal", 12),
    Sketcher.Constraint("Vertical", 14),
    Sketcher.Constraint("Vertical", 16),
    Sketcher.Constraint("Horizontal", 18),
    Sketcher.Constraint("Vertical", 20),
    Sketcher.Constraint("Horizontal", 22),
    Sketcher.Constraint("Vertical", 24),
    Sketcher.Constraint("Horizontal", 26),
    Sketcher.Constraint("Vertical", 28),
    Sketcher.Constraint("Horizontal", 30),
    Sketcher.Constraint("Equal", 1, 3),
    Sketcher.Constraint("Equal", 3, 5),
    Sketcher.Constraint("Equal", 5, 7),
    Sketcher.Constraint("Equal", 7, 9),
    Sketcher.Constraint("Equal", 9, 11),
    Sketcher.Constraint("Equal", 11, 13),
    Sketcher.Constraint("Equal", 13, 15),
    Sketcher.Constraint("Equal", 15, 17),
    Sketcher.Constraint("Equal", 17, 19),
    Sketcher.Constraint("Equal", 19, 21),
    Sketcher.Constraint("Equal", 21, 23),
    Sketcher.Constraint("Equal", 23, 25),
    Sketcher.Constraint("Equal", 25, 27),
    Sketcher.Constraint("Equal", 27, 29),
    Sketcher.Constraint("Equal", 29, 31),
    Sketcher.Constraint("Horizontal", 7, 3, 17, 3),
    Sketcher.Constraint("Horizontal", 5, 3, 21, 3),
    Sketcher.Constraint("Horizontal", 15, 3, 25, 3),
    Sketcher.Constraint("Horizontal", 13, 3, 29, 3),
    Sketcher.Constraint("Equal", 4, 8),
    Sketcher.Constraint("Equal", 12, 18),
    Sketcher.Constraint("Equal", 22, 26),
    Sketcher.Constraint("Equal", 6, 10),
    Sketcher.Constraint("Radius", 1, Q("1 mm")),
    Sketcher.Constraint("DistanceX", 0, 2, 0, 1, Q("8 mm")),
    Sketcher.Constraint("DistanceY", 2, 2, 2, 1, Q("4 mm")),
    Sketcher.Constraint("DistanceX", 9, 3, 3, 3, Q("4 mm")),
    Sketcher.Constraint("DistanceX", 17, 3, 1, 3, Q("22 mm")),
    Sketcher.Constraint("DistanceX", 25, 3, 9, 3, Q("14 mm")),
    Sketcher.Constraint("DistanceY", -1, 1, 1, 3, Q("32.6 mm")),
    Sketcher.Constraint("DistanceY", 9, 3, -1, 1, Q("47.6 mm")),
    Sketcher.Constraint("DistanceX", -1, 1, 1, 3, Q("10.76 mm")),
])
pocket5 = body.newObject("PartDesign::Pocket", "Pocket004")
pocket5.Profile = sketch6
pocket5.Type = "ThroughAll"

doc.recompute()
